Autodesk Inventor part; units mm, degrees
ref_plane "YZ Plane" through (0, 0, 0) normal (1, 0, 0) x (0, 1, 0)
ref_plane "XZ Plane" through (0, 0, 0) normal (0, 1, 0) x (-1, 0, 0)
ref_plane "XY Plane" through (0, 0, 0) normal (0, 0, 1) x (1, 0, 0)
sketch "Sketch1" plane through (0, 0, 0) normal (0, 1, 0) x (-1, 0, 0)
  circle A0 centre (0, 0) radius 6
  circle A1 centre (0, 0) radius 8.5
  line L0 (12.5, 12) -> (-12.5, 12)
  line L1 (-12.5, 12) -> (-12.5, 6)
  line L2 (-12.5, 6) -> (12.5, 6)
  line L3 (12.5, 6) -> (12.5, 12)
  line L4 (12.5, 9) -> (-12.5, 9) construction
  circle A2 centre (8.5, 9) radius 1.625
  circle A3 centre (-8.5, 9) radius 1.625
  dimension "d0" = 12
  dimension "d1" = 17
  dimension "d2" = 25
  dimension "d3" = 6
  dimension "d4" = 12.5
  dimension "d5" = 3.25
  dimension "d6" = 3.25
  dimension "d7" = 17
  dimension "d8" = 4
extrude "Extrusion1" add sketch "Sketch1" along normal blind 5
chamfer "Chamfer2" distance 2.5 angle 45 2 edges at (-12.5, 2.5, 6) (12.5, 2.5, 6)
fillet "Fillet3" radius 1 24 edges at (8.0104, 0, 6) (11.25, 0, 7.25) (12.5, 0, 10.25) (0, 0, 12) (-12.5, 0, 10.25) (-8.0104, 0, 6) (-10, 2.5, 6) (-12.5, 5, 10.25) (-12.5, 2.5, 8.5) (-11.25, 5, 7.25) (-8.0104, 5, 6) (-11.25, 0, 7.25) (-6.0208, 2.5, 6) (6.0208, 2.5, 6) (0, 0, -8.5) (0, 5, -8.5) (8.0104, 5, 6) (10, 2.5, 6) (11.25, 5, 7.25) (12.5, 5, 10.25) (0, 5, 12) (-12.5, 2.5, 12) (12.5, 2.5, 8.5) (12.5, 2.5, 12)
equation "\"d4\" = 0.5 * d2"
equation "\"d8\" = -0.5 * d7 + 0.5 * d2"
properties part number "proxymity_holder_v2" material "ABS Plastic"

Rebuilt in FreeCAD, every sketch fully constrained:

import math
import FreeCAD as App
import Part
import Sketcher

V = App.Vector
Q = App.Units.Quantity


def edges_at(feature, points):
    """Names of the edges that pass closest to the given points."""
    edges = feature.Shape.Edges
    near = lambda p: min(range(len(edges)), key=lambda i: edges[i].distToShape(Part.Vertex(*p))[0])
    return sorted({f"Edge{near(p) + 1}" for p in points})

doc = App.newDocument("Part")
params = doc.addObject("Spreadsheet::Sheet", "Params")
for row, (alias, value) in enumerate([
    ("sketch1_diameter", "12 mm"),
    ("sketch1_radius", "8.5 mm"),
    ("sketch1_diameter2", "3.25 mm"),
    ("sketch1_width", "25 mm"),
    ("sketch1_height", "6 mm"),
    ("pad1_length", "5 mm"),
    ("chamfer_size", "2.5 mm"),
    ("fillet_radius", "1 mm"),
], start=1):
    params.set(f"A{row}", alias)
    params.set(f"B{row}", "=" + value)
    params.setAlias(f"B{row}", alias)

body = doc.addObject("PartDesign::Body", "Body")

# Sketch on XZ plane
sketch1 = doc.addObject("Sketcher::SketchObject", "Sketch")
body.addObject(sketch1)
sketch1.AttachmentSupport = (doc.XZ_Plane, [""])
sketch1.MapMode = "FlatFace"
sketch1.addGeometry([
    Part.LineSegment(V(-6, 6, 0), V(-12.5, 6, 0)),  # 0
    Part.LineSegment(V(-12.5, 6, 0), V(-12.5, 12, 0)),  # 1
    Part.LineSegment(V(-12.5, 12, 0), V(12.5, 12, 0)),  # 2
    Part.LineSegment(V(12.5, 12, 0), V(12.5, 6, 0)),  # 3
    Part.LineSegment(V(12.5, 6, 0), V(6, 6, 0)),  # 4
    Part.ArcOfCircle(Part.Circle(V(0, 0, 0), V(0, 0, 1), 8.5), math.radians(135), math.radians(405)),  # 5
    Part.Circle(V(0, 0, 0), V(0, 0, 1), 6),  # 6
    Part.Circle(V(-8.5, 9, 0), V(0, 0, 1), 1.6),  # 7
    Part.Circle(V(8.5, 9, 0), V(0, 0, 1), 1.6),  # 8
], False)
sketch1.addConstraint([
    Sketcher.Constraint("Coincident", 0, 2, 1, 1),
    Sketcher.Constraint("Coincident", 1, 2, 2, 1),
    Sketcher.Constraint("Coincident", 2, 2, 3, 1),
    Sketcher.Constraint("Coincident", 3, 2, 4, 1),
    Sketcher.Constraint("Coincident", 4, 2, 5, 2),
    Sketcher.Constraint("Coincident", 5, 1, 0, 1),
    Sketcher.Constraint("Horizontal", 0),
    Sketcher.Constraint("Vertical", 1),
    Sketcher.Constraint("Horizontal", 2),
    Sketcher.Constraint("Vertical", 3),
    Sketcher.Constraint("Horizontal", 4),
    Sketcher.Constraint("Coincident", 5, 3, -1, 1),
    Sketcher.Constraint("Coincident", 6, 3, -1, 1),
    Sketcher.Constraint("Equal", 7, 8),
    Sketcher.Constraint("Symmetric", 7, 3, 8, 3, -2),
    Sketcher.Constraint("Symmetric", 0, 2, 3, 2, -2),
    Sketcher.Constraint("Diameter", 6, Q("12 mm")),
    Sketcher.Constraint("Radius", 5, Q("8.5 mm")),
    Sketcher.Constraint("Diameter", 7, Q("3.25 mm")),
    Sketcher.Constraint("DistanceX", 2, 1, 2, 2, Q("25 mm")),
    Sketcher.Constraint("DistanceY", 1, 1, 1, 2, Q("6 mm")),
    Sketcher.Constraint("DistanceY", -1, 1, 0, 2, Q("6 mm")),
    Sketcher.Constraint("DistanceX", 7, 3, 8, 3, Q("17 mm")),
    Sketcher.Constraint("DistanceY", -1, 1, 7, 3, Q("9 mm")),
])
sketch1.setExpression("Constraints[16]", "Params.sketch1_diameter")
sketch1.setExpression("Constraints[17]", "Params.sketch1_radius")
sketch1.setExpression("Constraints[18]", "Params.sketch1_diameter2")
sketch1.setExpression("Constraints[19]", "Params.sketch1_width")
sketch1.setExpression("Constraints[20]", "Params.sketch1_height")
pad1 = doc.addObject("PartDesign::Pad", "Pad")
body.addObject(pad1)
pad1.Profile = sketch1
pad1.setExpression("Length", "Params.pad1_length")
pad1.Reversed = True
doc.recompute()

chamfer = doc.addObject("PartDesign::Chamfer", "Chamfer")
body.addObject(chamfer)
chamfer.Base = (pad1, edges_at(pad1, [(-12.5, 2.5, 6), (12.5, 2.5, 6)]))
chamfer.setExpression("Size", "Params.chamfer_size")
doc.recompute()

fillet = doc.addObject("PartDesign::Fillet", "Fillet")
body.addObject(fillet)
fillet.Base = (chamfer, edges_at(chamfer, [
    (8.01, 0, 6),
    (11.25, 0, 7.25),
    (12.5, 0, 10.25),
    (0, 0, 12),
    (-12.5, 0, 10.25),
    (-8.01, 0, 6),
    (-10, 2.5, 6),
    (-12.5, 5, 10.25),
    (-12.5, 2.5, 8.5),
    (-11.25, 5, 7.25),
    (-8.01, 5, 6),
    (-11.25, 0, 7.25),
    (-6.021, 2.5, 6),
    (6.021, 2.5, 6),
    (0, 0, -8.5),
    (0, 5, -8.5),
    (8.01, 5, 6),
    (10, 2.5, 6),
    (11.25, 5, 7.25),
    (12.5, 5, 10.25),
    (0, 5, 12),
    (-12.5, 2.5, 12),
    (12.5, 2.5, 8.5),
    (12.5, 2.5, 12),
]))
fillet.setExpression("Radius", "Params.fillet_radius")

doc.recompute()
